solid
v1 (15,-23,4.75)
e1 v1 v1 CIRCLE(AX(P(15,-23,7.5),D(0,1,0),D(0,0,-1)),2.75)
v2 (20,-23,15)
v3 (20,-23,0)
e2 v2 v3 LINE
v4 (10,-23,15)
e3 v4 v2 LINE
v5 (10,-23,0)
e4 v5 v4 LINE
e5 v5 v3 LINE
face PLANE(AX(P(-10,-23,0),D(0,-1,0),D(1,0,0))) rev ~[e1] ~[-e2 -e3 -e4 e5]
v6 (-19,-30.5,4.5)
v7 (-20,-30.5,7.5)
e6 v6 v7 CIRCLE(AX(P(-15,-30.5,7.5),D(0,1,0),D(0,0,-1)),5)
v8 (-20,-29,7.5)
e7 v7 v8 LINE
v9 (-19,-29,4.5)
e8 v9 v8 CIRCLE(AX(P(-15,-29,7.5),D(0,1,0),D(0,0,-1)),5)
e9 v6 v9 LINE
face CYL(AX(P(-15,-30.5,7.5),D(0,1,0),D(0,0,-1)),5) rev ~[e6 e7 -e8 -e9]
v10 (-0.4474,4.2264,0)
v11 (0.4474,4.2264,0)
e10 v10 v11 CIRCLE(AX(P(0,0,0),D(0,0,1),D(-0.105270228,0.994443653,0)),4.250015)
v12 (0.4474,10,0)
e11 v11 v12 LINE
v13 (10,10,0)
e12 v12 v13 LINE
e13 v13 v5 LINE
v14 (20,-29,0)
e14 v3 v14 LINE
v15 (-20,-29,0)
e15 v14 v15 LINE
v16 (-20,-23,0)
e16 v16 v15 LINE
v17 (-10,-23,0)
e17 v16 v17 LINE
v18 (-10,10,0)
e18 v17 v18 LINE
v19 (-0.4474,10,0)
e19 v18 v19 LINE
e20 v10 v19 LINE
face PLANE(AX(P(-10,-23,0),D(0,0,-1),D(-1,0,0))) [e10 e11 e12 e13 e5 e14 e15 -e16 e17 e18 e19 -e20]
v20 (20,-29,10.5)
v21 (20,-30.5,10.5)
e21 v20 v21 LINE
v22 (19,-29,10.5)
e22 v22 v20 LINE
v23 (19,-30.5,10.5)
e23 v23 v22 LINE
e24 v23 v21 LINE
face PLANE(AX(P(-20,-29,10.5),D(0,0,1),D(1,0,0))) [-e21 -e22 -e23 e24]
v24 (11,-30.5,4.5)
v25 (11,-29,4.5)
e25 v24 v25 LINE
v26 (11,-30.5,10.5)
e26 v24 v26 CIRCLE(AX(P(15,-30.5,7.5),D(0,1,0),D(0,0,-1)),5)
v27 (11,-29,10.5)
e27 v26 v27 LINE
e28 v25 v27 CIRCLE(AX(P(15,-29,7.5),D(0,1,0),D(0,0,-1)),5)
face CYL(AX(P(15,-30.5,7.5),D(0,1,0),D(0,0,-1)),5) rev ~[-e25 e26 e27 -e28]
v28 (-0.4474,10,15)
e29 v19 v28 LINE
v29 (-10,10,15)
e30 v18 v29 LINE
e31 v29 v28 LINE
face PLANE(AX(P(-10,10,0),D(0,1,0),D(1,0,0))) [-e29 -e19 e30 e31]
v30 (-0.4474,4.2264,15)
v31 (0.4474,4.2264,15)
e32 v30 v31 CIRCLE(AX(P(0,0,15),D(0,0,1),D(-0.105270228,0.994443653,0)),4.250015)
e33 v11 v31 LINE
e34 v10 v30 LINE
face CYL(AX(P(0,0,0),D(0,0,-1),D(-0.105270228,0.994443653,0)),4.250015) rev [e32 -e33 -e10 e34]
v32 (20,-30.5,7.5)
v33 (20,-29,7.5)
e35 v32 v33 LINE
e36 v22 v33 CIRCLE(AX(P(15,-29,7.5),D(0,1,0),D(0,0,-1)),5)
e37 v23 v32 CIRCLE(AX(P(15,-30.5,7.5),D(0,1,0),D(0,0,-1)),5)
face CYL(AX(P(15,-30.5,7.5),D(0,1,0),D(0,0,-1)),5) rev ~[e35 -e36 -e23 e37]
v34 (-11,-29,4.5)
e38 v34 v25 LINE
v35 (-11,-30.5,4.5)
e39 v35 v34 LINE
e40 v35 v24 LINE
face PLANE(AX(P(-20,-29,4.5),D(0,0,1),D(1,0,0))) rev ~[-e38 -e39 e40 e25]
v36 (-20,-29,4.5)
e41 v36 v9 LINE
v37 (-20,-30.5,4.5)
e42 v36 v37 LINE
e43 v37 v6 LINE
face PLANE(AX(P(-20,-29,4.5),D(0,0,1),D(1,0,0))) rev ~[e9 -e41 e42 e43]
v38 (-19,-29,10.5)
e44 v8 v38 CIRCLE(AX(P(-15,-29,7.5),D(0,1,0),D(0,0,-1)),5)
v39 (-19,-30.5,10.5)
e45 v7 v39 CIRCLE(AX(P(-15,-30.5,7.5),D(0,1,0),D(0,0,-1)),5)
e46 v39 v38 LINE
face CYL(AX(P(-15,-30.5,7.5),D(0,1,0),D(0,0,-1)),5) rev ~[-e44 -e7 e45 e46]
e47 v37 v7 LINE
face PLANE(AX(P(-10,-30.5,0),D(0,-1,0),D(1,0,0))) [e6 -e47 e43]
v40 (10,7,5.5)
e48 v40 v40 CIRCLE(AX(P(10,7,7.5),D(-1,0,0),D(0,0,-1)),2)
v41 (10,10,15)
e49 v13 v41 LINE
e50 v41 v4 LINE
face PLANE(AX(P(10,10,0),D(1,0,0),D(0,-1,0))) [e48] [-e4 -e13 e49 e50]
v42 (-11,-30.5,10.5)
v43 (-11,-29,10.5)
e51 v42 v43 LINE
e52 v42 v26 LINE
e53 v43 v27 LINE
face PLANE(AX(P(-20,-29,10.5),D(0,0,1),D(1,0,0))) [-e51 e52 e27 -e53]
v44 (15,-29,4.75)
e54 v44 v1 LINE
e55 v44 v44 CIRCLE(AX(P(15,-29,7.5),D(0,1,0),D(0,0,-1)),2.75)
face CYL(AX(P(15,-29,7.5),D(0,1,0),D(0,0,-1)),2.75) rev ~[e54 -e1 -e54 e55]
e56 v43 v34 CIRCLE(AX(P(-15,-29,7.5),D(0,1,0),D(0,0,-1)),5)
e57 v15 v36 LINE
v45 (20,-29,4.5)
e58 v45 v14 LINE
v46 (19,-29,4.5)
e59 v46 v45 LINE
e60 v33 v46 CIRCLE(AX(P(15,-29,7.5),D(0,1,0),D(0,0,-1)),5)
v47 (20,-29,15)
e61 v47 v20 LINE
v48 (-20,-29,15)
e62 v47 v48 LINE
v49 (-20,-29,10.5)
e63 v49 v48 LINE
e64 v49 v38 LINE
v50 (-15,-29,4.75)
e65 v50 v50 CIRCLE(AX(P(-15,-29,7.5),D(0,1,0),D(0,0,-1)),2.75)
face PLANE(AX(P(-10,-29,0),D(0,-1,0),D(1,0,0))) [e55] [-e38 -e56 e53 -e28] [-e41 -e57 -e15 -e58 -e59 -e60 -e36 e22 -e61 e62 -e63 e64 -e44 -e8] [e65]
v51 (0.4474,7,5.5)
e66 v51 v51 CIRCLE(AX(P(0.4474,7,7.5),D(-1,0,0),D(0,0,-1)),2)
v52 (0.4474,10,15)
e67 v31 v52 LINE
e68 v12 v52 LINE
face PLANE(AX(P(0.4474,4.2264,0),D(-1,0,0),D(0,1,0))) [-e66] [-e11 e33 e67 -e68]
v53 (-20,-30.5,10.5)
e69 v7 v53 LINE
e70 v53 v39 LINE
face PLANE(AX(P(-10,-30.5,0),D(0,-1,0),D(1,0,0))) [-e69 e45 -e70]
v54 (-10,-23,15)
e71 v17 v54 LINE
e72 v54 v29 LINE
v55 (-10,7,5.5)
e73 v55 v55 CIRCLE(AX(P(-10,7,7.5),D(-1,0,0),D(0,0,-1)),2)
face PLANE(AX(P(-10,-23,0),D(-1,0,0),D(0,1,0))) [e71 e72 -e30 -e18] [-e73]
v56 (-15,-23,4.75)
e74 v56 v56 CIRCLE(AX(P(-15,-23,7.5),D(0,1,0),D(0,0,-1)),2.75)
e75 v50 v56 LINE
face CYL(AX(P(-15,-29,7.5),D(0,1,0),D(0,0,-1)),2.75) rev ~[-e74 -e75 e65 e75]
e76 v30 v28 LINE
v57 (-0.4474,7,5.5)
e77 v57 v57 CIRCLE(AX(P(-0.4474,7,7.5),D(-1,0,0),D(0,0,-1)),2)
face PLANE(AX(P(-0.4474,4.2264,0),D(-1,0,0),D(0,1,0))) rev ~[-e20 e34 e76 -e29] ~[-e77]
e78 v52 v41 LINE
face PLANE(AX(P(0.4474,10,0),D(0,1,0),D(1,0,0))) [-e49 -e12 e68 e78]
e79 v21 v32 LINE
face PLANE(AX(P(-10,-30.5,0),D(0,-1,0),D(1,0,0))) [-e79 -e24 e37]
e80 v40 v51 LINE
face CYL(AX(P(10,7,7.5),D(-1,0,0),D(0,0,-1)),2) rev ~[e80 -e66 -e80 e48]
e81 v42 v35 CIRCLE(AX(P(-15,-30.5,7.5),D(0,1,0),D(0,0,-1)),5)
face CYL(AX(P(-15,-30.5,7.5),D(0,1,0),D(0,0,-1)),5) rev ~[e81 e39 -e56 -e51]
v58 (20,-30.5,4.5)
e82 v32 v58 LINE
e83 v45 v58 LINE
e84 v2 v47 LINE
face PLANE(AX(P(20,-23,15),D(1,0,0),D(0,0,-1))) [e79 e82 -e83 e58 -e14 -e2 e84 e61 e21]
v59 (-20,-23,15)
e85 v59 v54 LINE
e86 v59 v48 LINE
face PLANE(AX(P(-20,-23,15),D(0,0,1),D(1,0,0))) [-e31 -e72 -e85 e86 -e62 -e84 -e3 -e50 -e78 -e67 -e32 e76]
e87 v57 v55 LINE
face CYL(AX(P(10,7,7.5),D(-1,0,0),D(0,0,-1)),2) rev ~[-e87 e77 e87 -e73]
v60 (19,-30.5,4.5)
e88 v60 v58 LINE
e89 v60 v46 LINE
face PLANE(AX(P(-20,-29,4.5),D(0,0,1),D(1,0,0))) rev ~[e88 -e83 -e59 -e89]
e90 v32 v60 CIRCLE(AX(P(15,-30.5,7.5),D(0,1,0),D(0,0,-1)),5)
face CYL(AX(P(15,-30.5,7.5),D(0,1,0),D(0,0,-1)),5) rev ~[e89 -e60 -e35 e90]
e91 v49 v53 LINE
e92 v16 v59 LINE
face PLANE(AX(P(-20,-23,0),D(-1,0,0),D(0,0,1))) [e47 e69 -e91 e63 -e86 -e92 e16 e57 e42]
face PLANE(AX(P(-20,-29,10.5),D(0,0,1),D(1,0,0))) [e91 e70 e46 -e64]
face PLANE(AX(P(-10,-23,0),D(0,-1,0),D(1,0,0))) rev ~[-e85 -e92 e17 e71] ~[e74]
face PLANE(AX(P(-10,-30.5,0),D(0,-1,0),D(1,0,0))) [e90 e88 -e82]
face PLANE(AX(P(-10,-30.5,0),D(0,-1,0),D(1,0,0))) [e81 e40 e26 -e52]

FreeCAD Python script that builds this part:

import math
import FreeCAD as App
import Part
import Sketcher

V = App.Vector

doc = App.newDocument("Part")
params = doc.addObject("Spreadsheet::Sheet", "Params")
for row, (alias, value) in enumerate([
    ("sketch1_width", "20 mm"),
    ("sketch1_radius", "4.25 mm"),
    ("pad1_length", "15 mm"),
    ("sketch2_width", "40 mm"),
    ("sketch2_height", "15 mm"),
    ("pad2_length", "6 mm"),
    ("sketch3_width", "40 mm"),
    ("sketch3_height", "6 mm"),
    ("pad3_length", "1.5 mm"),
    ("sketch4_diameter", "5.5 mm"),
    ("hole_diameter", "5.5 mm"),
    ("hole_cbore_diameter", "10 mm"),
    ("hole_cbore_depth", "1.5 mm"),
    ("sketch5_diameter", "4 mm"),
    ("hole2_diameter", "4 mm"),
], start=1):
    params.set(f"A{row}", alias)
    params.set(f"B{row}", "=" + value)
    params.setAlias(f"B{row}", alias)

body = doc.addObject("PartDesign::Body", "Body")

sketch1 = body.newObject("Sketcher::SketchObject", "Sketch")
sketch1.AttachmentSupport = (doc.getObject("XY_Plane"), [""])
sketch1.MapMode = "FlatFace"
sketch1.addGeometry([
    Part.ArcOfCircle(Part.Circle(V(0, 0, 0), V(0, 0, 1), 4.3), math.radians(96), math.radians(444)),
    Part.LineSegment(V(-0.4, 4.2, 0), V(-0.4, 10, 0)),
    Part.LineSegment(V(-0.4, 10, 0), V(-10, 10, 0)),
    Part.LineSegment(V(-10, 10, 0), V(-10, -23, 0)),
    Part.LineSegment(V(-10, -23, 0), V(10, -23, 0)),
    Part.LineSegment(V(10, -23, 0), V(10, 10, 0)),
    Part.LineSegment(V(10, 10, 0), V(0.4, 10, 0)),
    Part.LineSegment(V(0.4, 10, 0), V(0.4, 4.2, 0)),
], False)
sketch1.addConstraint([
    Sketcher.Constraint("Coincident", 0, 1, 1, 1),
    Sketcher.Constraint("Coincident", 1, 2, 2, 1),
    Sketcher.Constraint("Coincident", 2, 2, 3, 1),
    Sketcher.Constraint("Coincident", 3, 2, 4, 1),
    Sketcher.Constraint("Coincident", 4, 2, 5, 1),
    Sketcher.Constraint("Coincident", 5, 2, 6, 1),
    Sketcher.Constraint("Coincident", 6, 2, 7, 1),
    Sketcher.Constraint("Coincident", 7, 2, 0, 2),
    Sketcher.Constraint("Vertical", 1),
    Sketcher.Constraint("Horizontal", 2),
    Sketcher.Constraint("Vertical", 3),
    Sketcher.Constraint("Horizontal", 4),
    Sketcher.Constraint("Vertical", 5),
    Sketcher.Constraint("Horizontal", 6),
    Sketcher.Constraint("Vertical", 7),
    Sketcher.Constraint("Coincident", 0, 3, -1, 1),
    Sketcher.Constraint("Symmetric", 2, 2, 5, 2, -2),
    Sketcher.Constraint("Horizontal", 0, 1, 7, 2),
    Sketcher.Constraint("DistanceX", 4, 1, 4, 2, 20.0),
    Sketcher.Constraint("Radius", 0, 4.25),
    Sketcher.Constraint("DistanceY", -1, 1, 1, 2, 10.0),
    Sketcher.Constraint("DistanceY", 3, 2, -1, 1, 23.0),
    Sketcher.Constraint("DistanceX", 2, 2, 2, 1, 9.5526),
])
sketch1.setExpression("Constraints[18]", "Params.sketch1_width")
sketch1.setExpression("Constraints[19]", "Params.sketch1_radius")
pad1 = body.newObject("PartDesign::Pad", "Pad")
pad1.Profile = sketch1
pad1.setExpression("Length", "Params.pad1_length")

sketch2 = body.newObject("Sketcher::SketchObject", "Sketch001")
sketch2.AttachmentSupport = (doc.getObject("XZ_Plane"), [""])
sketch2.MapMode = "FlatFace"
sketch2.AttachmentOffset = App.Placement(V(0, 0, 23), App.Rotation())
sketch2.addGeometry([
    Part.LineSegment(V(-20, 0, 0), V(20, 0, 0)),
    Part.LineSegment(V(20, 0, 0), V(20, 15, 0)),
    Part.LineSegment(V(20, 15, 0), V(-20, 15, 0)),
    Part.LineSegment(V(-20, 15, 0), V(-20, 0, 0)),
], False)
sketch2.addConstraint([
    Sketcher.Constraint("Coincident", 0, 2, 1, 1),
    Sketcher.Constraint("Coincident", 1, 2, 2, 1),
    Sketcher.Constraint("Coincident", 2, 2, 3, 1),
    Sketcher.Constraint("Coincident", 3, 2, 0, 1),
    Sketcher.Constraint("Horizontal", 0),
    Sketcher.Constraint("Vertical", 1),
    Sketcher.Constraint("Horizontal", 2),
    Sketcher.Constraint("Vertical", 3),
    Sketcher.Constraint("Symmetric", 0, 2, 3, 2, -1, 1),
    Sketcher.Constraint("DistanceX", 0, 1, 0, 2, 40.0),
    Sketcher.Constraint("DistanceY", 1, 1, 1, 2, 15.0),
])
sketch2.setExpression("Constraints[9]", "Params.sketch2_width")
sketch2.setExpression("Constraints[10]", "Params.sketch2_height")
pad2 = body.newObject("PartDesign::Pad", "Pad001")
pad2.Profile = sketch2
pad2.setExpression("Length", "Params.pad2_length")

sketch3 = body.newObject("Sketcher::SketchObject", "Sketch002")
sketch3.AttachmentSupport = (doc.getObject("XZ_Plane"), [""])
sketch3.MapMode = "FlatFace"
sketch3.AttachmentOffset = App.Placement(V(0, 0, 29), App.Rotation())
sketch3.addGeometry([
    Part.LineSegment(V(20, 10, 0), V(-20, 10, 0)),
    Part.LineSegment(V(-20, 10, 0), V(-20, 4, 0)),
    Part.LineSegment(V(-20, 4, 0), V(20, 4, 0)),
    Part.LineSegment(V(20, 4, 0), V(20, 10, 0)),
], False)
sketch3.addConstraint([
    Sketcher.Constraint("Coincident", 0, 2, 1, 1),
    Sketcher.Constraint("Coincident", 1, 2, 2, 1),
    Sketcher.Constraint("Coincident", 2, 2, 3, 1),
    Sketcher.Constraint("Coincident", 3, 2, 0, 1),
    Sketcher.Constraint("Horizontal", 0),
    Sketcher.Constraint("Vertical", 1),
    Sketcher.Constraint("Horizontal", 2),
    Sketcher.Constraint("Vertical", 3),
    Sketcher.Constraint("DistanceX", 0, 2, 0, 1, 40.0),
    Sketcher.Constraint("DistanceY", 1, 2, 1, 1, 6.0),
    Sketcher.Constraint("DistanceX", 0, 2, -1, 1, 20.0),
    Sketcher.Constraint("DistanceY", -1, 1, 0, 2, 10.5),
])
sketch3.setExpression("Constraints[8]", "Params.sketch3_width")
sketch3.setExpression("Constraints[9]", "Params.sketch3_height")
pad3 = body.newObject("PartDesign::Pad", "Pad002")
pad3.Profile = sketch3
pad3.setExpression("Length", "Params.pad3_length")

sketch4 = body.newObject("Sketcher::SketchObject", "Sketch003")
sketch4.AttachmentSupport = (doc.getObject("XZ_Plane"), [""])
sketch4.MapMode = "FlatFace"
sketch4.AttachmentOffset = App.Placement(V(0, 0, 30.5), App.Rotation())
sketch4.addGeometry([
    Part.Circle(V(-15, 7.5, 0), V(0, 0, 1), 2.8),
    Part.Circle(V(15, 7.5, 0), V(0, 0, 1), 2.8),
], False)
sketch4.addConstraint([
    Sketcher.Constraint("Equal", 0, 1),
    Sketcher.Constraint("Symmetric", 0, 3, 1, 3, -2),
    Sketcher.Constraint("Diameter", 0, 5.5),
    Sketcher.Constraint("DistanceX", 0, 3, -1, 1, 15.0),
    Sketcher.Constraint("DistanceY", -1, 1, 0, 3, 7.5),
])
sketch4.setExpression("Constraints[2]", "Params.sketch4_diameter")
doc.recompute()
hole = body.newObject("PartDesign::Hole", "Hole")
hole.Profile = sketch4
hole.ThreadType = "None"
hole.setExpression("Diameter", "Params.hole_diameter")
hole.DepthType = "ThroughAll"
hole.HoleCutType = "Counterbore"
hole.setExpression("HoleCutDiameter", "Params.hole_cbore_diameter")
hole.setExpression("HoleCutDepth", "Params.hole_cbore_depth")

sketch5 = body.newObject("Sketcher::SketchObject", "Sketch004")
sketch5.AttachmentSupport = (doc.getObject("YZ_Plane"), [""])
sketch5.MapMode = "FlatFace"
sketch5.AttachmentOffset = App.Placement(V(0, 0, 10), App.Rotation())
sketch5.addGeometry(Part.Circle(V(7, 7.5, 0), V(0, 0, 1), 2), False)
sketch5.addConstraint([
    Sketcher.Constraint("Diameter", 0, 4.0),
    Sketcher.Constraint("DistanceX", -1, 1, 0, 3, 7.0),
    Sketcher.Constraint("DistanceY", -1, 1, 0, 3, 7.5),
])
sketch5.setExpression("Constraints[0]", "Params.sketch5_diameter")
doc.recompute()
hole2 = body.newObject("PartDesign::Hole", "Hole001")
hole2.Profile = sketch5
hole2.ThreadType = "None"
hole2.setExpression("Diameter", "Params.hole2_diameter")
hole2.DepthType = "ThroughAll"

doc.recompute()
